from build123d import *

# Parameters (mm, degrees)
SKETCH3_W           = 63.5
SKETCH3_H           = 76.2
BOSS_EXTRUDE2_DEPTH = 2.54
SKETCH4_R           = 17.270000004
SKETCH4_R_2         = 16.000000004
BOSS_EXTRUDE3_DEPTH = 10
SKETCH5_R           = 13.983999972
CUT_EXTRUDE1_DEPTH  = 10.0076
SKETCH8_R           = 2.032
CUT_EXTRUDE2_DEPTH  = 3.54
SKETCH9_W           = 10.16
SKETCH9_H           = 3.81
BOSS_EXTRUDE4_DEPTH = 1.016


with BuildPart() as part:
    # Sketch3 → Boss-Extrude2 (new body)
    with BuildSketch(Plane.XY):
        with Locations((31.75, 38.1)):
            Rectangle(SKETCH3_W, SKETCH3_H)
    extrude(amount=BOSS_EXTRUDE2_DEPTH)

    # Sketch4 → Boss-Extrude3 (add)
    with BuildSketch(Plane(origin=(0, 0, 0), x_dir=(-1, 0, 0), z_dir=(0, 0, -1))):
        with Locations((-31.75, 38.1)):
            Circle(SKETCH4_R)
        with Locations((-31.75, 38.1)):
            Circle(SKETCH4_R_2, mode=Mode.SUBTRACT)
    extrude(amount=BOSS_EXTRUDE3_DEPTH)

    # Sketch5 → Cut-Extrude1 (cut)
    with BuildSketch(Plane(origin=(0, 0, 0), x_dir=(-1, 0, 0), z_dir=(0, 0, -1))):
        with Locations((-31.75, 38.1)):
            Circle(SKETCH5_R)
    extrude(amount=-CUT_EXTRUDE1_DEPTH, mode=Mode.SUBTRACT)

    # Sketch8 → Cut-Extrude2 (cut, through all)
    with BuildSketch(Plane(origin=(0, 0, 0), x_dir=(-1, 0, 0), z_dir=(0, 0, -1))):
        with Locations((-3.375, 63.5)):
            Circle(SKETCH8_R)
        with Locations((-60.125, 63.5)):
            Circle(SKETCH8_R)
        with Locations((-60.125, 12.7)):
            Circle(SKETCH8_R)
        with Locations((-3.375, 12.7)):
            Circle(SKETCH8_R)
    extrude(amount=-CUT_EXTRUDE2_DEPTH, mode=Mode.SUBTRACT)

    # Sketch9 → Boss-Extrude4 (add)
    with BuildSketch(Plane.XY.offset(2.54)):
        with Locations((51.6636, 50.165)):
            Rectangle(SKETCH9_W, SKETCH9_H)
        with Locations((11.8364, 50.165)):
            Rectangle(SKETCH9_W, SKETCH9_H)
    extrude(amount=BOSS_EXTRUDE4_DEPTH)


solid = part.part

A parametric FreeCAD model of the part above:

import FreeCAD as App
import Part
import Sketcher

V = App.Vector
Q = App.Units.Quantity

doc = App.newDocument("Part")
body = doc.addObject("PartDesign::Body", "Body")

# Sketch on XY plane
sketch1 = body.newObject("Sketcher::SketchObject", "Sketch")
sketch1.AttachmentSupport = (doc.getObject("XY_Plane"), [""])
sketch1.MapMode = "FlatFace"
sketch1.addGeometry(Part.LineSegment(V(0, 76, 0), V(0, 0, 0)), False)
sketch1.addGeometry(Part.LineSegment(V(0, 0, 0), V(64, 0, 0)), False)
sketch1.addGeometry(Part.LineSegment(V(64, 0, 0), V(64, 76, 0)), False)
sketch1.addGeometry(Part.LineSegment(V(64, 76, 0), V(0, 76, 0)), False)
sketch1.addConstraint(Sketcher.Constraint("Coincident", 0, 2, 1, 1))
sketch1.addConstraint(Sketcher.Constraint("Coincident", 1, 2, 2, 1))
sketch1.addConstraint(Sketcher.Constraint("Coincident", 2, 2, 3, 1))
sketch1.addConstraint(Sketcher.Constraint("Coincident", 3, 2, 0, 1))
sketch1.addConstraint(Sketcher.Constraint("Vertical", 0))
sketch1.addConstraint(Sketcher.Constraint("Horizontal", 1))
sketch1.addConstraint(Sketcher.Constraint("Vertical", 2))
sketch1.addConstraint(Sketcher.Constraint("Horizontal", 3))
sketch1.addConstraint(Sketcher.Constraint("Coincident", 0, 2, -1, 1))
sketch1.addConstraint(Sketcher.Constraint("DistanceY", 0, 2, 0, 1, Q("3 in")))
sketch1.addConstraint(Sketcher.Constraint("DistanceX", 1, 1, 1, 2, Q("2.5 in")))
pad1 = body.newObject("PartDesign::Pad", "Pad")
pad1.Profile = sketch1
pad1.Length = Q("0.1 in")

# Sketch on XY plane
sketch2 = body.newObject("Sketcher::SketchObject", "Sketch001")
sketch2.AttachmentSupport = (doc.getObject("XY_Plane"), [""])
sketch2.MapMode = "FlatFace"
sketch2.addGeometry(Part.Circle(V(32, 38, 0), V(0, 0, 1), 17), False)
sketch2.addGeometry(Part.Circle(V(32, 38, 0), V(0, 0, 1), 16), False)
sketch2.addConstraint(Sketcher.Constraint("Coincident", 1, 3, 0, 3))
sketch2.addConstraint(Sketcher.Constraint("DistanceY", -1, 1, 0, 3, Q("1.5 in")))
sketch2.addConstraint(Sketcher.Constraint("Diameter", 0, 34.54))
sketch2.addConstraint(Sketcher.Constraint("Diameter", 1, 32.0))
sketch2.addConstraint(Sketcher.Constraint("DistanceX", -1, 1, 0, 3, Q("1.25 in")))
pad2 = body.newObject("PartDesign::Pad", "Pad001")
pad2.Profile = sketch2
pad2.Length = 10
pad2.Reversed = True

# Sketch on XY plane
sketch3 = body.newObject("Sketcher::SketchObject", "Sketch002")
sketch3.AttachmentSupport = (doc.getObject("XY_Plane"), [""])
sketch3.MapMode = "FlatFace"
sketch3.addGeometry(Part.Circle(V(32, 38, 0), V(0, 0, 1), 14), False)
sketch3.addConstraint(Sketcher.Constraint("DistanceY", -1, 1, 0, 3, Q("1.5 in")))
sketch3.addConstraint(Sketcher.Constraint("Diameter", 0, 27.968))
sketch3.addConstraint(Sketcher.Constraint("DistanceX", -1, 1, 0, 3, Q("1.25 in")))
pocket1 = body.newObject("PartDesign::Pocket", "Pocket")
pocket1.Profile = sketch3
pocket1.Length = Q("0.394 in")
pocket1.Reversed = True

# Sketch on XY plane
sketch4 = body.newObject("Sketcher::SketchObject", "Sketch003")
sketch4.AttachmentSupport = (doc.getObject("XY_Plane"), [""])
sketch4.MapMode = "FlatFace"
sketch4.addGeometry(Part.Circle(V(3.4, 63.5, 0), V(0, 0, 1), 2), False)
sketch4.addGeometry(Part.Circle(V(60.1, 63.5, 0), V(0, 0, 1), 2), False)
sketch4.addGeometry(Part.Circle(V(60.1, 12.7, 0), V(0, 0, 1), 2), False)
sketch4.addGeometry(Part.Circle(V(3.4, 12.7, 0), V(0, 0, 1), 2), False)
sketch4.addConstraint(Sketcher.Constraint("Equal", 0, 1))
sketch4.addConstraint(Sketcher.Constraint("Equal", 1, 2))
sketch4.addConstraint(Sketcher.Constraint("Equal", 2, 3))
sketch4.addConstraint(Sketcher.Constraint("Horizontal", 0, 3, 1, 3))
sketch4.addConstraint(Sketcher.Constraint("Horizontal", 2, 3, 3, 3))
sketch4.addConstraint(Sketcher.Constraint("Vertical", 1, 3, 2, 3))
sketch4.addConstraint(Sketcher.Constraint("Vertical", 0, 3, 3, 3))
sketch4.addConstraint(Sketcher.Constraint("Diameter", 0, Q("0.16 in")))
sketch4.addConstraint(Sketcher.Constraint("DistanceY", 2, 3, 1, 3, Q("2 in")))
sketch4.addConstraint(Sketcher.Constraint("DistanceY", -1, 1, 0, 3, Q("2.5 in")))
sketch4.addConstraint(Sketcher.Constraint("DistanceX", -1, 1, 0, 3, 3.375))
sketch4.addConstraint(Sketcher.Constraint("DistanceX", -1, 1, 1, 3, 60.125))
pocket2 = body.newObject("PartDesign::Pocket", "Pocket001")
pocket2.Profile = sketch4
pocket2.Type = "ThroughAll"
pocket2.Reversed = True

# Sketch on XY plane
sketch5 = body.newObject("Sketcher::SketchObject", "Sketch004")
sketch5.AttachmentSupport = (doc.getObject("XY_Plane"), [""])
sketch5.MapMode = "FlatFace"
sketch5.AttachmentOffset = App.Placement(V(0, 0, 0.1 * 25.4), App.Rotation())
sketch5.addGeometry(Part.LineSegment(V(46.6, 52.1, 0), V(46.6, 48.3, 0)), False)
sketch5.addGeometry(Part.LineSegment(V(46.6, 48.3, 0), V(56.7, 48.3, 0)), False)
sketch5.addGeometry(Part.LineSegment(V(56.7, 48.3, 0), V(56.7, 52.1, 0)), False)
sketch5.addGeometry(Part.LineSegment(V(56.7, 52.1, 0), V(46.6, 52.1, 0)), False)
sketch5.addGeometry(Part.LineSegment(V(6.8, 52.1, 0), V(6.8, 48.3, 0)), False)
sketch5.addGeometry(Part.LineSegment(V(6.8, 48.3, 0), V(16.9, 48.3, 0)), False)
sketch5.addGeometry(Part.LineSegment(V(16.9, 48.3, 0), V(16.9, 52.1, 0)), False)
sketch5.addGeometry(Part.LineSegment(V(16.9, 52.1, 0), V(6.8, 52.1, 0)), False)
sketch5.addConstraint(Sketcher.Constraint("Coincident", 0, 2, 1, 1))
sketch5.addConstraint(Sketcher.Constraint("Coincident", 1, 2, 2, 1))
sketch5.addConstraint(Sketcher.Constraint("Coincident", 2, 2, 3, 1))
sketch5.addConstraint(Sketcher.Constraint("Coincident", 3, 2, 0, 1))
sketch5.addConstraint(Sketcher.Constraint("Coincident", 4, 2, 5, 1))
sketch5.addConstraint(Sketcher.Constraint("Coincident", 5, 2, 6, 1))
sketch5.addConstraint(Sketcher.Constraint("Coincident", 6, 2, 7, 1))
sketch5.addConstraint(Sketcher.Constraint("Coincident", 7, 2, 4, 1))
sketch5.addConstraint(Sketcher.Constraint("Vertical", 0))
sketch5.addConstraint(Sketcher.Constraint("Horizontal", 1))
sketch5.addConstraint(Sketcher.Constraint("Vertical", 2))
sketch5.addConstraint(Sketcher.Constraint("Horizontal", 3))
sketch5.addConstraint(Sketcher.Constraint("Vertical", 4))
sketch5.addConstraint(Sketcher.Constraint("Horizontal", 5))
sketch5.addConstraint(Sketcher.Constraint("Vertical", 6))
sketch5.addConstraint(Sketcher.Constraint("Horizontal", 7))
sketch5.addConstraint(Sketcher.Constraint("Horizontal", 1, 2, 4, 2))
sketch5.addConstraint(Sketcher.Constraint("Horizontal", 3, 2, 6, 2))
sketch5.addConstraint(Sketcher.Constraint("Equal", 3, 5))
sketch5.addConstraint(Sketcher.Constraint("DistanceX", 1, 1, 1, 2, Q("0.4 in")))
sketch5.addConstraint(Sketcher.Constraint("DistanceY", 0, 2, 0, 1, Q("0.15 in")))
sketch5.addConstraint(Sketcher.Constraint("DistanceY", -1, 1, 0, 2, Q("1.9 in")))
sketch5.addConstraint(Sketcher.Constraint("DistanceX", -1, 1, 0, 2, Q("1.834 in")))
sketch5.addConstraint(Sketcher.Constraint("DistanceX", -1, 1, 4, 2, Q("0.266 in")))
pad3 = body.newObject("PartDesign::Pad", "Pad002")
pad3.Profile = sketch5
pad3.Length = Q("0.04 in")

doc.recompute()
